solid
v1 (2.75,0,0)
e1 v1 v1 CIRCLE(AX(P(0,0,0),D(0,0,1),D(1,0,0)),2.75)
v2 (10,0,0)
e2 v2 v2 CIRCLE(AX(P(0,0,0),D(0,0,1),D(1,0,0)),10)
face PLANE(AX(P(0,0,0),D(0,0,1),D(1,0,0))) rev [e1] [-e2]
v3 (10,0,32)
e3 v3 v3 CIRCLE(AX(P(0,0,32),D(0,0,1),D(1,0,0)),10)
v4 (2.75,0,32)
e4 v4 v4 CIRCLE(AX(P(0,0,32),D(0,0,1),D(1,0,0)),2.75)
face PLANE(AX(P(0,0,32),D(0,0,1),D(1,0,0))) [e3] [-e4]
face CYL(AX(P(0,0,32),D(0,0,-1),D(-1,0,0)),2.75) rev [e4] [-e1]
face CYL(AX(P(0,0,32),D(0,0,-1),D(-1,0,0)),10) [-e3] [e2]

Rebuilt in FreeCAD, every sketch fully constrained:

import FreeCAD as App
import Part
import Sketcher

V = App.Vector

doc = App.newDocument("Part")
body = doc.addObject("PartDesign::Body", "Body")

sketch1 = body.newObject("Sketcher::SketchObject", "Sketch")
sketch1.AttachmentSupport = (doc.getObject("XY_Plane"), [""])
sketch1.MapMode = "FlatFace"
sketch1.addGeometry([
    Part.Circle(V(0, 0, 0), V(0, 0, 1), 10),
    Part.Circle(V(0, 0, 0), V(0, 0, 1), 2.8),
], False)
sketch1.addConstraint([
    Sketcher.Constraint("Coincident", 0, 3, -1, 1),
    Sketcher.Constraint("Coincident", 1, 3, -1, 1),
    Sketcher.Constraint("Diameter", 0, 20.0),
    Sketcher.Constraint("Diameter", 1, 5.5),
])
pad1 = body.newObject("PartDesign::Pad", "Pad")
pad1.Profile = sketch1
pad1.Length = 32

doc.recompute()
